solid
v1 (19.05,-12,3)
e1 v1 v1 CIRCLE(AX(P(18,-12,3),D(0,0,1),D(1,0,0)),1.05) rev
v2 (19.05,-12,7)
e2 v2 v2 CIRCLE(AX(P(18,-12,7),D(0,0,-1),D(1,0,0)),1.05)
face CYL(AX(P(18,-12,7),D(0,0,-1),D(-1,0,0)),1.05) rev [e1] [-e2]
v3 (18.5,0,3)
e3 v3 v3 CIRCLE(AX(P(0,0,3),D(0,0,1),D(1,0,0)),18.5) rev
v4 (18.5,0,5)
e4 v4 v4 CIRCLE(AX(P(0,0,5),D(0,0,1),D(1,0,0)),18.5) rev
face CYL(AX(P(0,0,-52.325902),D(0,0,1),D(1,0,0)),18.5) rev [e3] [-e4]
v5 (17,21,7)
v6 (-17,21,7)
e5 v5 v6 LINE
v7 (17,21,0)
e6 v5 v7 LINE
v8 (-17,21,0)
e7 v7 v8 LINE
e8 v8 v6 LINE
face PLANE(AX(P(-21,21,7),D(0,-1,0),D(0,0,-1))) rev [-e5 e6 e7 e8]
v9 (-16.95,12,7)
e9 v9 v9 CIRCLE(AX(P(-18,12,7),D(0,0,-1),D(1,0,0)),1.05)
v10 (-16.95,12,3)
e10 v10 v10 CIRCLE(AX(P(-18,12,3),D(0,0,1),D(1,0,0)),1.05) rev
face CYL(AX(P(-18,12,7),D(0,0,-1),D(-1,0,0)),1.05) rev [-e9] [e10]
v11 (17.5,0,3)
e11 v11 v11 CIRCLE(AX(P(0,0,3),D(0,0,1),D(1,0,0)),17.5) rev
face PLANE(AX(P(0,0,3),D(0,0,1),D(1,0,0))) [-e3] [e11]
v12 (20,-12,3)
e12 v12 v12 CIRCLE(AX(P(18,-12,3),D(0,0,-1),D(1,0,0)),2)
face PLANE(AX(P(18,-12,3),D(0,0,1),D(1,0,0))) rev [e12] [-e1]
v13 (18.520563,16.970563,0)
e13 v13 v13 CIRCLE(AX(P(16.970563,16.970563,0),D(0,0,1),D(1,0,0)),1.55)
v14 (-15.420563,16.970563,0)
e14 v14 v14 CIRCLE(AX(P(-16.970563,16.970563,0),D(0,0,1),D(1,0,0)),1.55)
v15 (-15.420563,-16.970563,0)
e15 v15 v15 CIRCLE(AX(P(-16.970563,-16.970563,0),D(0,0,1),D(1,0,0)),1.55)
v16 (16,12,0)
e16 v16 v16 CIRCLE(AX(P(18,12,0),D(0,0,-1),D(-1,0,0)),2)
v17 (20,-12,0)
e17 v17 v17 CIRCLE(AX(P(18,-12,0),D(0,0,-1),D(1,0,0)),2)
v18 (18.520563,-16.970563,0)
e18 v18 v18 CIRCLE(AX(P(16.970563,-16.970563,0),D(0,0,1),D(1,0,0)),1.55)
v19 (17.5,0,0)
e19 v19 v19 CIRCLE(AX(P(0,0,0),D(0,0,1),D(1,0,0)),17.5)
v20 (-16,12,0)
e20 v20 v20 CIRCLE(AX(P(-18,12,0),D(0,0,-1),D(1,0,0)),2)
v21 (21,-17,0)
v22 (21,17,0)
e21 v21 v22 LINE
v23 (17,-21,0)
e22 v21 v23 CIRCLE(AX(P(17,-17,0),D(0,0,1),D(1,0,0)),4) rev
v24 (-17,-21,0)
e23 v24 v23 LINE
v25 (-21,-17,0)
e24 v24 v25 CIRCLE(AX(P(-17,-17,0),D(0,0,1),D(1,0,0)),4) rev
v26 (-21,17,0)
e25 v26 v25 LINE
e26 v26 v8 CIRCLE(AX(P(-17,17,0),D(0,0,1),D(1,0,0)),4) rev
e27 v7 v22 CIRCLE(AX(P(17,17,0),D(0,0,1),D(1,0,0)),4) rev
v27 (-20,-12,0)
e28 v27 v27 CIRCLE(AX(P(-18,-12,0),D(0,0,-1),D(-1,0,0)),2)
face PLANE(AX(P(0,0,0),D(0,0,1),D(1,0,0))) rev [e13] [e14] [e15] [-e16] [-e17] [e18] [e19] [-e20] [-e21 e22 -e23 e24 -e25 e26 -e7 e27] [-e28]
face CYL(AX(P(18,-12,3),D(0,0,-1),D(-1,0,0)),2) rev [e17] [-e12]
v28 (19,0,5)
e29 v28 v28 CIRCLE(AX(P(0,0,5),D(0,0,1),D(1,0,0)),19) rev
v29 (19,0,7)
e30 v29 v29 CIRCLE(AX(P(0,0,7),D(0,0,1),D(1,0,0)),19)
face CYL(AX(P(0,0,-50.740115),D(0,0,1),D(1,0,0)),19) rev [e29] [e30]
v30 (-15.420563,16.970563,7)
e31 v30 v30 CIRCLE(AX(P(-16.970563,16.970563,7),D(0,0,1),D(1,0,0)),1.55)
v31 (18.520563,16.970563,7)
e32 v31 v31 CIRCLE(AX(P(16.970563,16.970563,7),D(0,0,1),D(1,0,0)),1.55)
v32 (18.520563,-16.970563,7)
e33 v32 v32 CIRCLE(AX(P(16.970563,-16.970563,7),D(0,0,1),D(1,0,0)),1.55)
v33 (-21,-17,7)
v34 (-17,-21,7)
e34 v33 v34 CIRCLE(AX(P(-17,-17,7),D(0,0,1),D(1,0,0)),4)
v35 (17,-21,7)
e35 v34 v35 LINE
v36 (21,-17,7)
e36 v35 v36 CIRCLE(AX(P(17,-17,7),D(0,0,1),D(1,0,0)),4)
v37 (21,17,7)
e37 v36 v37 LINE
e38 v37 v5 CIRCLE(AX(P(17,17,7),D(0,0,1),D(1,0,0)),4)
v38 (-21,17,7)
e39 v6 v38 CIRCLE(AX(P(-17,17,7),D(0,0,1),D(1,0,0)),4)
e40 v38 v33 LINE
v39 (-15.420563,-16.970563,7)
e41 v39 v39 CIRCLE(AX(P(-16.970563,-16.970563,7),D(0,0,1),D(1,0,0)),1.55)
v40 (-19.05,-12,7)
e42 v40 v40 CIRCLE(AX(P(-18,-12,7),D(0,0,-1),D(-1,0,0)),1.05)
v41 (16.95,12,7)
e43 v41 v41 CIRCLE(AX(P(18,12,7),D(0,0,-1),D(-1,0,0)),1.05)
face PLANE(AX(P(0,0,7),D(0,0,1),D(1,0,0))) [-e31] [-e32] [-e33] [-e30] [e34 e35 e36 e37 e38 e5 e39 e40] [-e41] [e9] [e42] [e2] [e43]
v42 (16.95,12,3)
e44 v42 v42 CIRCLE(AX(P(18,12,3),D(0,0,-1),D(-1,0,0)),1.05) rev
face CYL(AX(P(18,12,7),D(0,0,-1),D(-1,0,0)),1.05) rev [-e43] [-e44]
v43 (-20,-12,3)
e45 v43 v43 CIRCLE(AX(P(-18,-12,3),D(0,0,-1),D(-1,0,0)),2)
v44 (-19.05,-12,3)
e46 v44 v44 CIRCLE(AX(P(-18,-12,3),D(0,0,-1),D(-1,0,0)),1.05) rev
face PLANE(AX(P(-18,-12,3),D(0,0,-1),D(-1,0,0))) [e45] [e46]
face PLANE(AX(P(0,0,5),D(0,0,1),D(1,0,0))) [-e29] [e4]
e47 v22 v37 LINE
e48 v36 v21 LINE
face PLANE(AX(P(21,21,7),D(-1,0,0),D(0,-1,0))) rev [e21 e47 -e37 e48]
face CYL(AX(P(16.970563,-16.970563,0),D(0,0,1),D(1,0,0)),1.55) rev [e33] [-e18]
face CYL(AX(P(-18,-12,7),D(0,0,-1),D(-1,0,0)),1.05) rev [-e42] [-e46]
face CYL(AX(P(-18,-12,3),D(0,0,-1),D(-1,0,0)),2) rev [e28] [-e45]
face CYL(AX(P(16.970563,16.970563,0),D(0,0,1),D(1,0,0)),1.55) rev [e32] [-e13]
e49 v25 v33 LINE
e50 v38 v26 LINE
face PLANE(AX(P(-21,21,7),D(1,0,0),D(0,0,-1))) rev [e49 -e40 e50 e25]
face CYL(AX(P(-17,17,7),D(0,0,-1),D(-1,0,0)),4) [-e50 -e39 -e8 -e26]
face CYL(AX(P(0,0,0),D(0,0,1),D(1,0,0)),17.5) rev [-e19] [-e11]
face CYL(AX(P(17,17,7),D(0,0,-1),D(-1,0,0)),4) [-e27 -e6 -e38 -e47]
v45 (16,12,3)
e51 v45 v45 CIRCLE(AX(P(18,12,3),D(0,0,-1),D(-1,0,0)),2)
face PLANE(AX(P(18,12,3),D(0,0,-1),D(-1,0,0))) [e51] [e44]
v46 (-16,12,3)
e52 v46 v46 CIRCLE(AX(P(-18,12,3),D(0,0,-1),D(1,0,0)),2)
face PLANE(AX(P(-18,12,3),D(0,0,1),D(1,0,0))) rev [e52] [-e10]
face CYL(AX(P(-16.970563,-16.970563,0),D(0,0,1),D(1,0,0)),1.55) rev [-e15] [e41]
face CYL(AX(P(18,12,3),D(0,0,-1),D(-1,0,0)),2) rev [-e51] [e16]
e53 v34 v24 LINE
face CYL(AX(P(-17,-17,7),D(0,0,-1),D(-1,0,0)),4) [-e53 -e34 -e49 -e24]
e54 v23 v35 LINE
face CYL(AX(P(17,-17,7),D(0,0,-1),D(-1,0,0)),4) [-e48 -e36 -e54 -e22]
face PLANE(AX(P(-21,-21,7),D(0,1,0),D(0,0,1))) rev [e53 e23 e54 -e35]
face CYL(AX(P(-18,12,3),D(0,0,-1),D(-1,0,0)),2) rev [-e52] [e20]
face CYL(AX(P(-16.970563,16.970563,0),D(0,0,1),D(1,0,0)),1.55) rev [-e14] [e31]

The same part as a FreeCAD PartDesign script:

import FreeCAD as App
import Part
import Sketcher

V = App.Vector
Q = App.Units.Quantity


def edges_at(feature, points):
    """Names of the edges that pass closest to the given points."""
    edges = feature.Shape.Edges
    near = lambda p: min(range(len(edges)), key=lambda i: edges[i].distToShape(Part.Vertex(*p))[0])
    return sorted({f"Edge{near(p) + 1}" for p in points})

doc = App.newDocument("Part")
params = doc.addObject("Spreadsheet::Sheet", "Params")
for row, (alias, value) in enumerate([
    ("sketch1_width", "42 mm"),
    ("pad1_length", "7 mm"),
    ("sketch2_diameter", "35 mm"),
    ("sketch3_diameter", "37 mm"),
    ("pocket2_length", "4 mm"),
    ("sketch4_diameter", "38 mm"),
    ("pocket3_length", "2 mm"),
    ("fillet_radius", "4 mm"),
    ("sketch5_diameter", "3.1 mm"),
    ("sketch6_diameter", "2.1 mm"),
    ("sketch7_diameter", "4 mm"),
    ("pocket6_length", "3 mm"),
], start=1):
    params.set(f"A{row}", alias)
    params.set(f"B{row}", "=" + value)
    params.setAlias(f"B{row}", alias)

body = doc.addObject("PartDesign::Body", "Body")

sketch1 = doc.addObject("Sketcher::SketchObject", "Sketch")
body.addObject(sketch1)
sketch1.AttachmentSupport = (doc.XY_Plane, [""])
sketch1.MapMode = "FlatFace"
sketch1.addGeometry(Part.LineSegment(V(-21, 21, 0), V(-21, -21, 0)), False)
sketch1.addGeometry(Part.LineSegment(V(-21, -21, 0), V(21, -21, 0)), False)
sketch1.addGeometry(Part.LineSegment(V(21, -21, 0), V(21, 21, 0)), False)
sketch1.addGeometry(Part.LineSegment(V(21, 21, 0), V(-21, 21, 0)), False)
sketch1.addConstraint(Sketcher.Constraint("Coincident", 0, 2, 1, 1))
sketch1.addConstraint(Sketcher.Constraint("Coincident", 1, 2, 2, 1))
sketch1.addConstraint(Sketcher.Constraint("Coincident", 2, 2, 3, 1))
sketch1.addConstraint(Sketcher.Constraint("Coincident", 3, 2, 0, 1))
sketch1.addConstraint(Sketcher.Constraint("Vertical", 0))
sketch1.addConstraint(Sketcher.Constraint("Horizontal", 1))
sketch1.addConstraint(Sketcher.Constraint("Vertical", 2))
sketch1.addConstraint(Sketcher.Constraint("Horizontal", 3))
sketch1.addConstraint(Sketcher.Constraint("Symmetric", 0, 2, 2, 2, -1, 1))
sketch1.addConstraint(Sketcher.Constraint("Equal", 3, 0))
sketch1.addConstraint(Sketcher.Constraint("DistanceX", 1, 1, 1, 2, Q("42 mm")))
sketch1.setExpression("Constraints[10]", "Params.sketch1_width")
pad1 = doc.addObject("PartDesign::Pad", "Pad")
body.addObject(pad1)
pad1.Profile = sketch1
pad1.setExpression("Length", "Params.pad1_length")

sketch2 = doc.addObject("Sketcher::SketchObject", "Sketch001")
body.addObject(sketch2)
sketch2.AttachmentSupport = (doc.XY_Plane, [""])
sketch2.MapMode = "FlatFace"
sketch2.AttachmentOffset = App.Placement(V(0, 0, 7), App.Rotation())
sketch2.addGeometry(Part.Circle(V(0, 0, 0), V(0, 0, 1), 17.5), False)
sketch2.addConstraint(Sketcher.Constraint("Coincident", 0, 3, -1, 1))
sketch2.addConstraint(Sketcher.Constraint("Diameter", 0, Q("35 mm")))
sketch2.setExpression("Constraints[1]", "Params.sketch2_diameter")
pocket1 = doc.addObject("PartDesign::Pocket", "Pocket")
body.addObject(pocket1)
pocket1.Profile = sketch2
pocket1.Type = "ThroughAll"

sketch3 = doc.addObject("Sketcher::SketchObject", "Sketch002")
body.addObject(sketch3)
sketch3.AttachmentSupport = (doc.XY_Plane, [""])
sketch3.MapMode = "FlatFace"
sketch3.AttachmentOffset = App.Placement(V(0, 0, 7), App.Rotation())
sketch3.addGeometry(Part.Circle(V(0, 0, 0), V(0, 0, 1), 18.5), False)
sketch3.addConstraint(Sketcher.Constraint("Coincident", 0, 3, -1, 1))
sketch3.addConstraint(Sketcher.Constraint("Diameter", 0, Q("37 mm")))
sketch3.setExpression("Constraints[1]", "Params.sketch3_diameter")
pocket2 = doc.addObject("PartDesign::Pocket", "Pocket001")
body.addObject(pocket2)
pocket2.Profile = sketch3
pocket2.setExpression("Length", "Params.pocket2_length")

sketch4 = doc.addObject("Sketcher::SketchObject", "Sketch003")
body.addObject(sketch4)
sketch4.AttachmentSupport = (doc.XY_Plane, [""])
sketch4.MapMode = "FlatFace"
sketch4.AttachmentOffset = App.Placement(V(0, 0, 7), App.Rotation())
sketch4.addGeometry(Part.Circle(V(0, 0, 0), V(0, 0, 1), 19), False)
sketch4.addConstraint(Sketcher.Constraint("Coincident", 0, 3, -1, 1))
sketch4.addConstraint(Sketcher.Constraint("Diameter", 0, Q("38 mm")))
sketch4.setExpression("Constraints[1]", "Params.sketch4_diameter")
pocket3 = doc.addObject("PartDesign::Pocket", "Pocket002")
body.addObject(pocket3)
pocket3.Profile = sketch4
pocket3.setExpression("Length", "Params.pocket3_length")
doc.recompute()

fillet = doc.addObject("PartDesign::Fillet", "Fillet")
body.addObject(fillet)
fillet.Base = (pocket3, edges_at(pocket3, [
    (21, -21, 3.5),
    (-21, -21, 3.5),
    (-21, 21, 3.5),
    (21, 21, 3.5),
]))
fillet.setExpression("Radius", "Params.fillet_radius")

sketch5 = doc.addObject("Sketcher::SketchObject", "Sketch004")
body.addObject(sketch5)
sketch5.AttachmentSupport = (doc.XY_Plane, [""])
sketch5.MapMode = "FlatFace"
sketch5.AttachmentOffset = App.Placement(V(0, 0, 7), App.Rotation())
sketch5.addGeometry(Part.Circle(V(-16.970563, 16.970563, 0), V(0, 0, 1), 1.55), False)
sketch5.addGeometry(Part.Circle(V(16.970563, 16.970563, 0), V(0, 0, 1), 1.55), False)
sketch5.addGeometry(Part.Circle(V(16.970563, -16.970563, 0), V(0, 0, 1), 1.55), False)
sketch5.addGeometry(Part.Circle(V(-16.970563, -16.970563, 0), V(0, 0, 1), 1.55), False)
sketch5.addConstraint(Sketcher.Constraint("Equal", 0, 1))
sketch5.addConstraint(Sketcher.Constraint("Equal", 1, 2))
sketch5.addConstraint(Sketcher.Constraint("Equal", 2, 3))
sketch5.addConstraint(Sketcher.Constraint("Symmetric", 0, 3, 2, 3, -1, 1))
sketch5.addConstraint(Sketcher.Constraint("Symmetric", 1, 3, 3, 3, -1, 1))
sketch5.addConstraint(Sketcher.Constraint("Symmetric", 0, 3, 1, 3, -2))
sketch5.addConstraint(Sketcher.Constraint("Diameter", 0, Q("3.1 mm")))
sketch5.addConstraint(Sketcher.Constraint("DistanceX", 0, 3, -1, 1, Q("16.970563 mm")))
sketch5.addConstraint(Sketcher.Constraint("DistanceY", -1, 1, 0, 3, Q("16.970563 mm")))
sketch5.setExpression("Constraints[6]", "Params.sketch5_diameter")
pocket4 = doc.addObject("PartDesign::Pocket", "Pocket003")
body.addObject(pocket4)
pocket4.Profile = sketch5
pocket4.Type = "ThroughAll"

sketch6 = doc.addObject("Sketcher::SketchObject", "Sketch005")
body.addObject(sketch6)
sketch6.AttachmentSupport = (doc.XY_Plane, [""])
sketch6.MapMode = "FlatFace"
sketch6.addGeometry(Part.Circle(V(18, 12, 0), V(0, 0, 1), 1.05), False)
sketch6.addGeometry(Part.Circle(V(-18, 12, 0), V(0, 0, 1), 1.05), False)
sketch6.addGeometry(Part.Circle(V(-18, -12, 0), V(0, 0, 1), 1.05), False)
sketch6.addGeometry(Part.Circle(V(18, -12, 0), V(0, 0, 1), 1.05), False)
sketch6.addConstraint(Sketcher.Constraint("Equal", 0, 1))
sketch6.addConstraint(Sketcher.Constraint("Equal", 1, 2))
sketch6.addConstraint(Sketcher.Constraint("Equal", 2, 3))
sketch6.addConstraint(Sketcher.Constraint("Symmetric", 0, 3, 2, 3, -1, 1))
sketch6.addConstraint(Sketcher.Constraint("Symmetric", 1, 3, 3, 3, -1, 1))
sketch6.addConstraint(Sketcher.Constraint("Symmetric", 0, 3, 1, 3, -2))
sketch6.addConstraint(Sketcher.Constraint("Diameter", 0, Q("2.1 mm")))
sketch6.addConstraint(Sketcher.Constraint("DistanceX", -1, 1, 0, 3, Q("18 mm")))
sketch6.addConstraint(Sketcher.Constraint("DistanceY", -1, 1, 0, 3, Q("12 mm")))
sketch6.setExpression("Constraints[6]", "Params.sketch6_diameter")
pocket5 = doc.addObject("PartDesign::Pocket", "Pocket004")
body.addObject(pocket5)
pocket5.Profile = sketch6
pocket5.Type = "ThroughAll"
pocket5.Reversed = True

sketch7 = doc.addObject("Sketcher::SketchObject", "Sketch006")
body.addObject(sketch7)
sketch7.AttachmentSupport = (doc.XY_Plane, [""])
sketch7.MapMode = "FlatFace"
sketch7.addGeometry(Part.Circle(V(18, 12, 0), V(0, 0, 1), 2), False)
sketch7.addGeometry(Part.Circle(V(-18, 12, 0), V(0, 0, 1), 2), False)
sketch7.addGeometry(Part.Circle(V(-18, -12, 0), V(0, 0, 1), 2), False)
sketch7.addGeometry(Part.Circle(V(18, -12, 0), V(0, 0, 1), 2), False)
sketch7.addConstraint(Sketcher.Constraint("Equal", 0, 1))
sketch7.addConstraint(Sketcher.Constraint("Equal", 1, 2))
sketch7.addConstraint(Sketcher.Constraint("Equal", 2, 3))
sketch7.addConstraint(Sketcher.Constraint("Symmetric", 0, 3, 2, 3, -1, 1))
sketch7.addConstraint(Sketcher.Constraint("Symmetric", 1, 3, 3, 3, -1, 1))
sketch7.addConstraint(Sketcher.Constraint("Symmetric", 0, 3, 1, 3, -2))
sketch7.addConstraint(Sketcher.Constraint("Diameter", 0, Q("4 mm")))
sketch7.addConstraint(Sketcher.Constraint("DistanceX", -1, 1, 0, 3, Q("18 mm")))
sketch7.addConstraint(Sketcher.Constraint("DistanceY", -1, 1, 0, 3, Q("12 mm")))
sketch7.setExpression("Constraints[6]", "Params.sketch7_diameter")
pocket6 = doc.addObject("PartDesign::Pocket", "Pocket005")
body.addObject(pocket6)
pocket6.Profile = sketch7
pocket6.setExpression("Length", "Params.pocket6_length")
pocket6.Reversed = True

doc.recompute()
